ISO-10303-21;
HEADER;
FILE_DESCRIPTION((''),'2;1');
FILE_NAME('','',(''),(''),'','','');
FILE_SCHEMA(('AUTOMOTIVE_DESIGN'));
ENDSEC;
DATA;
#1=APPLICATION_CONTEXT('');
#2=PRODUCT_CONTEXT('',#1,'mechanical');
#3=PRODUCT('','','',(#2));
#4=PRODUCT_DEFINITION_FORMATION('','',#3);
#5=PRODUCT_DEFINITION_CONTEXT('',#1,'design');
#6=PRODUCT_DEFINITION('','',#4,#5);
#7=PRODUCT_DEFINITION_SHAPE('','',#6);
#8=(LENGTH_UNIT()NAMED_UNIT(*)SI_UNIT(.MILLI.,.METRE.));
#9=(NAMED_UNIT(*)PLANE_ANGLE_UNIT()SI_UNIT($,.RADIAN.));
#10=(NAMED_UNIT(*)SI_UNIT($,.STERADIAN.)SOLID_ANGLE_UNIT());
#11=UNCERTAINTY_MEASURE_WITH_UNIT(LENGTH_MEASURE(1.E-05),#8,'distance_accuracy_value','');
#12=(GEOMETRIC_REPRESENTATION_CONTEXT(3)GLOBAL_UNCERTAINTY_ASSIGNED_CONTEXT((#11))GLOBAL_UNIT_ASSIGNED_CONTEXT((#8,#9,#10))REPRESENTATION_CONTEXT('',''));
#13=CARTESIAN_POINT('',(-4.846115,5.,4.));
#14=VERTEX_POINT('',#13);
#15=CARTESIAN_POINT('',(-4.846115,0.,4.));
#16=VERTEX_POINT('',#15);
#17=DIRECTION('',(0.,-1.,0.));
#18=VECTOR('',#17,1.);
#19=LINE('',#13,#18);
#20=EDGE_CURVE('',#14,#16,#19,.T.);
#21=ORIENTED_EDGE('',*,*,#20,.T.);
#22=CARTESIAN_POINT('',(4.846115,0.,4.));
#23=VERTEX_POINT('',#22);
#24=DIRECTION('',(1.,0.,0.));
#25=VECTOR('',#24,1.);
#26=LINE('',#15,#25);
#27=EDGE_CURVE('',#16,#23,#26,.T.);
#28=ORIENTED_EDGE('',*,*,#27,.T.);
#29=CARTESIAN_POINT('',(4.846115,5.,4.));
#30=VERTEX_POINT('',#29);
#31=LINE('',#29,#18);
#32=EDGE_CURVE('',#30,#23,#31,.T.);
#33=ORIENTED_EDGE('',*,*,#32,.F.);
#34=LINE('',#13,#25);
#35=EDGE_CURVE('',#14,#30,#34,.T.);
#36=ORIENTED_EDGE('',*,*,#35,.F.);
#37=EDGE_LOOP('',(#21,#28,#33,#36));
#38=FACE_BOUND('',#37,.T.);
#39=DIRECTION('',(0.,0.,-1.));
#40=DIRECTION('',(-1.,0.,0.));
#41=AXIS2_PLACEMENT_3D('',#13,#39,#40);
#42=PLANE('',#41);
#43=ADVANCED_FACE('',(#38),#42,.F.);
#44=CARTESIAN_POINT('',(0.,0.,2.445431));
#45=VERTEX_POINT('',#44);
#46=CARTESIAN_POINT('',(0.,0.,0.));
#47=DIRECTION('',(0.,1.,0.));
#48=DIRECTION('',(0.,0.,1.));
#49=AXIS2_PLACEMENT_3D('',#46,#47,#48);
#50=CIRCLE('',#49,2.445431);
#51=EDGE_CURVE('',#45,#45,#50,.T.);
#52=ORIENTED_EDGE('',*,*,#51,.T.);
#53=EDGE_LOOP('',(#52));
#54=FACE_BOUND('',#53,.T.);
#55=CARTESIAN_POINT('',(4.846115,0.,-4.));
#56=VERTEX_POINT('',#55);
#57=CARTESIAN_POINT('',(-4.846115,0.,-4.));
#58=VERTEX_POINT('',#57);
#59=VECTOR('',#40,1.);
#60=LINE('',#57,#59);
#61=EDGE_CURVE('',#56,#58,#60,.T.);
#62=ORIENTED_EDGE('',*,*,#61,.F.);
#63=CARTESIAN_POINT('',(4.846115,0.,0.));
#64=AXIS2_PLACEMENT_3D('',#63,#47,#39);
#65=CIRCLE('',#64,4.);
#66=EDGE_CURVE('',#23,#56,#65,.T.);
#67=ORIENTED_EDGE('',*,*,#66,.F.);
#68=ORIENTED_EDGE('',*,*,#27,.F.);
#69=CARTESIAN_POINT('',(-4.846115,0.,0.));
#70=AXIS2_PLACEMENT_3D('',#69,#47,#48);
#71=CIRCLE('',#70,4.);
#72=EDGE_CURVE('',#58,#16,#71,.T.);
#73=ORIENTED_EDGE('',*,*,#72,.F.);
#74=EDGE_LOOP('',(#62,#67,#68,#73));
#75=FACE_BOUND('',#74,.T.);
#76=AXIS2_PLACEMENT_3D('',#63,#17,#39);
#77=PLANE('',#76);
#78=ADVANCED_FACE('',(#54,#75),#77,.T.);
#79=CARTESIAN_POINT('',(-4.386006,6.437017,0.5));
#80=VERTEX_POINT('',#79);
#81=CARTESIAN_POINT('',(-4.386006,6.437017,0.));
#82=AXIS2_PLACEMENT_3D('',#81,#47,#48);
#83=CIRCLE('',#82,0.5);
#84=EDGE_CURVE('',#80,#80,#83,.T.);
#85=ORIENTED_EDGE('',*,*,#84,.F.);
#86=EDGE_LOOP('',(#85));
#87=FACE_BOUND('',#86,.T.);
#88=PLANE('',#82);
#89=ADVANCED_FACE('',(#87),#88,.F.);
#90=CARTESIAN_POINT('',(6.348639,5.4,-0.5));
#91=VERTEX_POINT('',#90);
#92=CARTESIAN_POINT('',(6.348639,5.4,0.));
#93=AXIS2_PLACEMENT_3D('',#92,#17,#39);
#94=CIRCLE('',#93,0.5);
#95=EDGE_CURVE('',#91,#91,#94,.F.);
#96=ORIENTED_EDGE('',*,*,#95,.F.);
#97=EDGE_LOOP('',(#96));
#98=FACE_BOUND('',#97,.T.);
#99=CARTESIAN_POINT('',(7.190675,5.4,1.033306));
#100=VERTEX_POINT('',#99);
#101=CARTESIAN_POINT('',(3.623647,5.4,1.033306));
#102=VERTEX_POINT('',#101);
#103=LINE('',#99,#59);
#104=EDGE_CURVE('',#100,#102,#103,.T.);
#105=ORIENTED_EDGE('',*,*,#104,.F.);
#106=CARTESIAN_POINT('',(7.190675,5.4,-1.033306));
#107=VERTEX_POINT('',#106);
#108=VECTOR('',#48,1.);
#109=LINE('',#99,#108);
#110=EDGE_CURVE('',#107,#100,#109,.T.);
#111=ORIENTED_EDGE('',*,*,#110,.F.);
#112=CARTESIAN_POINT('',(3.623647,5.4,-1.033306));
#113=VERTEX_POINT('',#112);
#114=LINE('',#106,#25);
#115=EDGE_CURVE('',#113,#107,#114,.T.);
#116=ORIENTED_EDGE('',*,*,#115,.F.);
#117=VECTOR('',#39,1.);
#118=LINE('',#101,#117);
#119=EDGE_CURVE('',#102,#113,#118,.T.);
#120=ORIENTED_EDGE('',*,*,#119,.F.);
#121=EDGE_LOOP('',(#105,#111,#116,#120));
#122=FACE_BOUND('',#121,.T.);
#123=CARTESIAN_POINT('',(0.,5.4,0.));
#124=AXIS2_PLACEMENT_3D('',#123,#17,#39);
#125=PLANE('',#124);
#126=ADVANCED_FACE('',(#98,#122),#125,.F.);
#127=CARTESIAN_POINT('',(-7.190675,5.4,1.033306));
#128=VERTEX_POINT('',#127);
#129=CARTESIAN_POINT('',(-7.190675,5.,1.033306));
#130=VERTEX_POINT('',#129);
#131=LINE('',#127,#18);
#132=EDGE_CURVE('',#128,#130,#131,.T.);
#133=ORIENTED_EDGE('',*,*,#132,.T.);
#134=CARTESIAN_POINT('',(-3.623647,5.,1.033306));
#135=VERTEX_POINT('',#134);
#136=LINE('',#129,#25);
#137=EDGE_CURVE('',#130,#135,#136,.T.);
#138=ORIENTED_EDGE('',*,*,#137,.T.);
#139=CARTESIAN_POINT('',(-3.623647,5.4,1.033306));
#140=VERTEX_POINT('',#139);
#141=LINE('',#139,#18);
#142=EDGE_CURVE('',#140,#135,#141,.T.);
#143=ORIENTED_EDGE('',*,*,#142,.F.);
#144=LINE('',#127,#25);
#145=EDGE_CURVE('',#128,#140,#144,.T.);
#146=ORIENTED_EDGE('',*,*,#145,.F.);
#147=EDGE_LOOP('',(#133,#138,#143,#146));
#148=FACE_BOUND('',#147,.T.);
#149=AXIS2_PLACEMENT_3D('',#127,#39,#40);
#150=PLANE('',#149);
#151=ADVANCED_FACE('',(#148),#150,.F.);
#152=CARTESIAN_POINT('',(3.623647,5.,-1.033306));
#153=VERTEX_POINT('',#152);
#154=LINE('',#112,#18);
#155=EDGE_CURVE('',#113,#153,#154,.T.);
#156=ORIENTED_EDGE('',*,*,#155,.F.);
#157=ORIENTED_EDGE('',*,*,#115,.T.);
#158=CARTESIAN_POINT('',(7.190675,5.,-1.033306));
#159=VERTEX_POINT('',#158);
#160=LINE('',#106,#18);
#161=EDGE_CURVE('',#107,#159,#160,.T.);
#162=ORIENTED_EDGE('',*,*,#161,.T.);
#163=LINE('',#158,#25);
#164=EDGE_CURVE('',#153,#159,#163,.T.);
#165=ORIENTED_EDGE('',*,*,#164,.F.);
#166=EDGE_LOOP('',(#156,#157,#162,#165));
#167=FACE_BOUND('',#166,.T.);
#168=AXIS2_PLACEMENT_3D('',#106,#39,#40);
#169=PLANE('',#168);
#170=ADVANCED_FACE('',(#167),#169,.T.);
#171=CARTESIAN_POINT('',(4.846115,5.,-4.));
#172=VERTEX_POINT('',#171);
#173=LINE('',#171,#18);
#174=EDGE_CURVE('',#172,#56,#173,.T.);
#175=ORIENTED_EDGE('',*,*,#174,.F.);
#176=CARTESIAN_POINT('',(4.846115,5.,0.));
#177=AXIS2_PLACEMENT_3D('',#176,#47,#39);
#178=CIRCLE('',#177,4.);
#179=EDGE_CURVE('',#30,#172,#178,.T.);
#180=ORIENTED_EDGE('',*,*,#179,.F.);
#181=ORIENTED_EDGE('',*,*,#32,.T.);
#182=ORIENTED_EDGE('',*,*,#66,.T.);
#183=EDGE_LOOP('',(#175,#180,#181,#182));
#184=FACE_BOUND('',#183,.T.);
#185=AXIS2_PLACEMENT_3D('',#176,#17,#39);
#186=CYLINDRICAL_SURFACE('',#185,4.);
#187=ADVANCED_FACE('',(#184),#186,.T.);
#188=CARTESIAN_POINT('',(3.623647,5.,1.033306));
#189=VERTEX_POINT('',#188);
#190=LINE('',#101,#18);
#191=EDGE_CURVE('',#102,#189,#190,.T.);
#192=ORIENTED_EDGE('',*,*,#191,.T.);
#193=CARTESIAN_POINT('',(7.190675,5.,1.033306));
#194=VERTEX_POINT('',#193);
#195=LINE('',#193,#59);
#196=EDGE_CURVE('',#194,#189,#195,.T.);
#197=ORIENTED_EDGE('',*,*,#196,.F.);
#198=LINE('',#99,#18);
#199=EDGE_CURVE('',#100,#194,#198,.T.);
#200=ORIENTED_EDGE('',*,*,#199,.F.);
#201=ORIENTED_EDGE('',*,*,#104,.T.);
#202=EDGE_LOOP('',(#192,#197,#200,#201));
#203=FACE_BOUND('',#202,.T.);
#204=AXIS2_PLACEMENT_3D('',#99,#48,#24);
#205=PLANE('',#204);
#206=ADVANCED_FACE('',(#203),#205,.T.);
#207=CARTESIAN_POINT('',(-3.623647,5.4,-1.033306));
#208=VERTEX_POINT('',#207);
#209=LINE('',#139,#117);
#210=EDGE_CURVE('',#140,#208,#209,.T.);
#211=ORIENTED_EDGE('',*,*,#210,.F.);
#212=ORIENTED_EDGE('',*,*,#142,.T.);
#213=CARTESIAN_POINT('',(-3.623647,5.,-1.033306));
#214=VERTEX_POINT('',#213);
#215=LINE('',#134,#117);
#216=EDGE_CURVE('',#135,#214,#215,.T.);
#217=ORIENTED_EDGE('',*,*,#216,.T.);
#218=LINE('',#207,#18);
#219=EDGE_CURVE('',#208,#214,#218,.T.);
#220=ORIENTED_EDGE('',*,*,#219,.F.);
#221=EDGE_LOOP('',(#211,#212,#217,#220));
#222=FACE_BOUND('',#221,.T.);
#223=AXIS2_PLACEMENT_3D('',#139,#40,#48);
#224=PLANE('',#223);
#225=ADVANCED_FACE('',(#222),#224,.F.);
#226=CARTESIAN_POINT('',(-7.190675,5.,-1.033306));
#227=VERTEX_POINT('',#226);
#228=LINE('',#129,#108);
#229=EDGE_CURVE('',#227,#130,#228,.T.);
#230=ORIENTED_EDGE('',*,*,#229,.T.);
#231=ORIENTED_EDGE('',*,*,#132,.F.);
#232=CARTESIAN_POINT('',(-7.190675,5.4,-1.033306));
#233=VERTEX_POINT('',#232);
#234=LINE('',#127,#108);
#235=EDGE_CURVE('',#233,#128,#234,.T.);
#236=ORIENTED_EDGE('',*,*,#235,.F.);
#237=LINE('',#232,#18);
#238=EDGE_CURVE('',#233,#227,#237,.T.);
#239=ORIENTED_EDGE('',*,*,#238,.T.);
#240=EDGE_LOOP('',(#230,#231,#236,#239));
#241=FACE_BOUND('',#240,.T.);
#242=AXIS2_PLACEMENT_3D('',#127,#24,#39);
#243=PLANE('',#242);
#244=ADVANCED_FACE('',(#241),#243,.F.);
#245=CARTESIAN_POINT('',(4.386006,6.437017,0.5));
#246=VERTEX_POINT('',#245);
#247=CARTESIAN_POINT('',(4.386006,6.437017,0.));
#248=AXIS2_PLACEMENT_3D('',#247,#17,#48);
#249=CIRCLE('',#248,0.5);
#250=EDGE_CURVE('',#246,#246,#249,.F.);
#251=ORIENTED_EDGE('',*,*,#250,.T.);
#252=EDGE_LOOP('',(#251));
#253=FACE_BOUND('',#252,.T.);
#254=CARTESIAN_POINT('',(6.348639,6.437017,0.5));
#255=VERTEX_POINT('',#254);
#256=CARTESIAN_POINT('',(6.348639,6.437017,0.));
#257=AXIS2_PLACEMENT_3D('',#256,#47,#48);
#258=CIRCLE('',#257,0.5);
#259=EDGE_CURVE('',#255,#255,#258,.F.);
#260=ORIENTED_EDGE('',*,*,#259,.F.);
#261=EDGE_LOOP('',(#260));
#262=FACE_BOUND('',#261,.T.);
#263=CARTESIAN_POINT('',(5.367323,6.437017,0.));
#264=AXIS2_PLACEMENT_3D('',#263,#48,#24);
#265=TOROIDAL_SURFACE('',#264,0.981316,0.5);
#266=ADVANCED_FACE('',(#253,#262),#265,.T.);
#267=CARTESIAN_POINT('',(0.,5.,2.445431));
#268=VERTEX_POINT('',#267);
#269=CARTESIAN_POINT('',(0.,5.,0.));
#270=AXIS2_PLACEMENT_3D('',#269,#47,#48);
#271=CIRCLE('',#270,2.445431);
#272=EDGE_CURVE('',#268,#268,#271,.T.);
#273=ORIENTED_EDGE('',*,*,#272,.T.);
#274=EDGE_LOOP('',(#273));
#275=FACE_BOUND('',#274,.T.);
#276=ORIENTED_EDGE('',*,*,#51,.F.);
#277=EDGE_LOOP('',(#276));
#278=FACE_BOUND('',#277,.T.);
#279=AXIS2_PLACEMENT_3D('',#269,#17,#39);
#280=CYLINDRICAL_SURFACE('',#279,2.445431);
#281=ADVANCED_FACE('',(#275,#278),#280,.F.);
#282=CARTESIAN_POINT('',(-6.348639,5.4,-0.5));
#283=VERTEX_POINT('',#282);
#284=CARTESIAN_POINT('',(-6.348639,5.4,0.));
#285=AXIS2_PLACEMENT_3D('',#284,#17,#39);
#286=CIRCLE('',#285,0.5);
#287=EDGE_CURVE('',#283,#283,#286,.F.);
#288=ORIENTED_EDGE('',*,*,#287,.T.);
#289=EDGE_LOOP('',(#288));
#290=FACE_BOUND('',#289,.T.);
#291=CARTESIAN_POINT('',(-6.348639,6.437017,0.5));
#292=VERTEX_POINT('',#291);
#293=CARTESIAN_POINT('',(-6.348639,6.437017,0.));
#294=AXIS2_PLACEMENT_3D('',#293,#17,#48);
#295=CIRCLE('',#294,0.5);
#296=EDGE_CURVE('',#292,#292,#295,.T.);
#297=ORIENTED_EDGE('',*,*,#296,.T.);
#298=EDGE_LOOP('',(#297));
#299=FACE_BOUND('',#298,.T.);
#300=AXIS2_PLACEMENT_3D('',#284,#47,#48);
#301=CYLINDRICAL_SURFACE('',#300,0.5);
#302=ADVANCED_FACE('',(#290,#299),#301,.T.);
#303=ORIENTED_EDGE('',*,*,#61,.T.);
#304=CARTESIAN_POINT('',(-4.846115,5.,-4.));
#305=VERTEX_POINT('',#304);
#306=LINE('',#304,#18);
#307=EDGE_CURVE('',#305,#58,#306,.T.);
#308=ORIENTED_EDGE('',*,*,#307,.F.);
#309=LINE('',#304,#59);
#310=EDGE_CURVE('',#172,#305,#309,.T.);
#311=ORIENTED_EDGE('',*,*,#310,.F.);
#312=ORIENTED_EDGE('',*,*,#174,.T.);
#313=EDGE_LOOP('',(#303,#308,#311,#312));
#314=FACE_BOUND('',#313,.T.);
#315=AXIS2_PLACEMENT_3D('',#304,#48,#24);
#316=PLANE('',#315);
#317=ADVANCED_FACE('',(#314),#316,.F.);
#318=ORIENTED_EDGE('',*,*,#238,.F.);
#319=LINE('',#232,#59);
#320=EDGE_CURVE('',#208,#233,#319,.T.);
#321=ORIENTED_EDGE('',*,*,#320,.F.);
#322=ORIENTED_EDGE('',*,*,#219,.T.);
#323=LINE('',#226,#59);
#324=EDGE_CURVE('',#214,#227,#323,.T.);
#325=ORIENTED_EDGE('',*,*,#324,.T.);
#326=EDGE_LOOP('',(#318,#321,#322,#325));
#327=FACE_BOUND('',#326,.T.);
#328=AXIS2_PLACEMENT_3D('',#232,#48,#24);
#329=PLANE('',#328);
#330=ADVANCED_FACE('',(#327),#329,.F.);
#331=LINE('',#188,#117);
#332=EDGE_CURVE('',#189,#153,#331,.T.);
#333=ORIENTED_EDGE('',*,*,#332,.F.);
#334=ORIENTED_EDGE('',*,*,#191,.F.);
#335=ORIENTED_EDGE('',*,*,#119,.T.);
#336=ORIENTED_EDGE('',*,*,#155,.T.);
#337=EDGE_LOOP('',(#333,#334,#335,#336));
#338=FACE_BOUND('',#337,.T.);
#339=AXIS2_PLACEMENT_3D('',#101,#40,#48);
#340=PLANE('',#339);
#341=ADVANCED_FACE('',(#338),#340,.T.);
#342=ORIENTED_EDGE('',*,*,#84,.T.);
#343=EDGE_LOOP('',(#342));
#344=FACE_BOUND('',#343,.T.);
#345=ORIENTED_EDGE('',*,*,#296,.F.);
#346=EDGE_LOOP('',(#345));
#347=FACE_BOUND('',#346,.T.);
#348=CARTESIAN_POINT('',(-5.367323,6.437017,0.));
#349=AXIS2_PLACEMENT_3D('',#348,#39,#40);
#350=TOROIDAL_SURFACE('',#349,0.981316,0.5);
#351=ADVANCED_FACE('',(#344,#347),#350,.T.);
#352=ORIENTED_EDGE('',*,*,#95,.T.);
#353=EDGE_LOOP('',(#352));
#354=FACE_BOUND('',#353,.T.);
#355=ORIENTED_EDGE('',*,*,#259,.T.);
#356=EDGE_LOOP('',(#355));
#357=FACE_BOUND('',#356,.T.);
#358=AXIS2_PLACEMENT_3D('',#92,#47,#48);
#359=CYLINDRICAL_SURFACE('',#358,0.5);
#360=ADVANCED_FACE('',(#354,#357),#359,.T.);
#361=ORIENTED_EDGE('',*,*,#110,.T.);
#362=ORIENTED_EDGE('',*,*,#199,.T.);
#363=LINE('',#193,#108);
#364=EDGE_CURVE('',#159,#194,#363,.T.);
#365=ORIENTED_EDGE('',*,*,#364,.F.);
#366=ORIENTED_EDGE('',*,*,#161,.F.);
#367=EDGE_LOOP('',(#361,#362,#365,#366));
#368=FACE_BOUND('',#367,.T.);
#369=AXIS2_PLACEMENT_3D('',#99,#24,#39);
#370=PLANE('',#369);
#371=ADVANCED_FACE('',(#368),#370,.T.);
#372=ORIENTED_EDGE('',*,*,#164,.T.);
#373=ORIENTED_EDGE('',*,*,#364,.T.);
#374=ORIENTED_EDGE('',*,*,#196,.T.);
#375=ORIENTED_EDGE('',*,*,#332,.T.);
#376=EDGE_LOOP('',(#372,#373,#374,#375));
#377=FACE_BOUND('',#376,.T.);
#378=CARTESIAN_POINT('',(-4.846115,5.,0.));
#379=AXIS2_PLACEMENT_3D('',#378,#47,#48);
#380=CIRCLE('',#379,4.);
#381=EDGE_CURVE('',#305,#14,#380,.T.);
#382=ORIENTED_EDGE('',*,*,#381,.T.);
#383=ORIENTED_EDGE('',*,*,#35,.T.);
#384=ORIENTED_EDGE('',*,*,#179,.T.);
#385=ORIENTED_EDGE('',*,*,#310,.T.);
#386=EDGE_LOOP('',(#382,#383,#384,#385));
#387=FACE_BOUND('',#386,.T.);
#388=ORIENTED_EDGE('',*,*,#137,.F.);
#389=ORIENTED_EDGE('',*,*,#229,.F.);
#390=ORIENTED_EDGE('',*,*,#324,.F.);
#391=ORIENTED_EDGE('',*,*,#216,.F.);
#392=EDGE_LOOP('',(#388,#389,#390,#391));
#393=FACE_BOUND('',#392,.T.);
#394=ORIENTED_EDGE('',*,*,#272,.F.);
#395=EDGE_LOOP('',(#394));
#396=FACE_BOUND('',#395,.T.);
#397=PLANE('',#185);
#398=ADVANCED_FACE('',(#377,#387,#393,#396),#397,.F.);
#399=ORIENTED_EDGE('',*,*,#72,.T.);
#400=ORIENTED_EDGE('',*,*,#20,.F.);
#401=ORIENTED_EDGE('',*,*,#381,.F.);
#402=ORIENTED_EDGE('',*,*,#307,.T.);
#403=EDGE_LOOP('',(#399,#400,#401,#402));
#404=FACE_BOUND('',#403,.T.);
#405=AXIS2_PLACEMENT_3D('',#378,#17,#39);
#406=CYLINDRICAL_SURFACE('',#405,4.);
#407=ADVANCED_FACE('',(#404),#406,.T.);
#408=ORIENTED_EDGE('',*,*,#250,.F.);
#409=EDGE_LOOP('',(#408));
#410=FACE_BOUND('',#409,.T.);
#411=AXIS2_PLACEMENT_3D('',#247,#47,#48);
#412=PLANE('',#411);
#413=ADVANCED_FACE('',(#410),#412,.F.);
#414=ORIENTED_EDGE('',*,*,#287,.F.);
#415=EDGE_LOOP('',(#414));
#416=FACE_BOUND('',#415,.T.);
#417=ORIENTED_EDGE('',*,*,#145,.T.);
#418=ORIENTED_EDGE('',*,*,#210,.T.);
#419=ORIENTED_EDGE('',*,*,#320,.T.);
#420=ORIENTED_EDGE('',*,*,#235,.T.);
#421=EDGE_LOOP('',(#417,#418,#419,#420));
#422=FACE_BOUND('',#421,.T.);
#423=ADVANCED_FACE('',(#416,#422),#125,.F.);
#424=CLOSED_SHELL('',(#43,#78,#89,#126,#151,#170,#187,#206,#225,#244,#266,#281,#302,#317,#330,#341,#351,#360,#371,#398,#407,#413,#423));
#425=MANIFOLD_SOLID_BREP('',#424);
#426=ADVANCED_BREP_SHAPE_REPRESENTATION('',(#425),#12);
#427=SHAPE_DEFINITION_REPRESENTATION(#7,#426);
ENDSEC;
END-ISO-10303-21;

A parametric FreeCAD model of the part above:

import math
import FreeCAD as App
import Part
import Sketcher


def add_polygon(sketch, points):
    """Adds a closed chain of lines whose ends are joined by coincident constraints."""
    first, n = sketch.GeometryCount, len(points)
    for a, b in zip(points, points[1:] + points[:1]):
        sketch.addGeometry(Part.LineSegment(App.Vector(*a, 0), App.Vector(*b, 0)), False)
    for i in range(n):
        sketch.addConstraint(Sketcher.Constraint("Coincident", first + i, 2, first + (i + 1) % n, 1))

doc = App.newDocument("Part")
body = doc.addObject("PartDesign::Body", "Body")

# Sketch on XZ plane
sketch1 = body.newObject("Sketcher::SketchObject", "Sketch")
sketch1.AttachmentSupport = (doc.getObject("XZ_Plane"), [""])
sketch1.MapMode = "FlatFace"
sketch1.addGeometry(Part.LineSegment(App.Vector(4.8, -4, 0), App.Vector(-4.8, -4, 0)), False)
sketch1.addGeometry(Part.ArcOfCircle(Part.Circle(App.Vector(-4.8, 0, 0), App.Vector(0, 0, 1), 4), math.radians(90), math.radians(270)), False)
sketch1.addGeometry(Part.LineSegment(App.Vector(-4.8, 4, 0), App.Vector(4.8, 4, 0)), False)
sketch1.addGeometry(Part.ArcOfCircle(Part.Circle(App.Vector(4.8, 0, 0), App.Vector(0, 0, 1), 4), math.radians(-90), math.radians(90)), False)
sketch1.addGeometry(Part.Circle(App.Vector(0, 0, 0), App.Vector(0, 0, 1), 2.4), False)
sketch1.addConstraint(Sketcher.Constraint("Tangent", 0, 2, 1, 2))
sketch1.addConstraint(Sketcher.Constraint("Tangent", 1, 1, 2, 1))
sketch1.addConstraint(Sketcher.Constraint("Tangent", 2, 2, 3, 2))
sketch1.addConstraint(Sketcher.Constraint("Tangent", 3, 1, 0, 1))
sketch1.addConstraint(Sketcher.Constraint("Horizontal", 0))
sketch1.addConstraint(Sketcher.Constraint("Horizontal", 2))
sketch1.addConstraint(Sketcher.Constraint("Coincident", 4, 3, -1, 1))
sketch1.addConstraint(Sketcher.Constraint("Symmetric", 1, 3, 3, 3, -1, 1))
sketch1.addConstraint(Sketcher.Constraint("Radius", 1, 4.0))
sketch1.addConstraint(Sketcher.Constraint("Diameter", 4, 4.890863))
sketch1.addConstraint(Sketcher.Constraint("DistanceX", 0, 2, 0, 1, 9.69223))
pad1 = body.newObject("PartDesign::Pad", "Pad")
pad1.Profile = sketch1
pad1.Length = 5
pad1.Reversed = True

# Sketch on XZ plane
sketch2 = body.newObject("Sketcher::SketchObject", "Sketch001")
sketch2.AttachmentSupport = (doc.getObject("XZ_Plane"), [""])
sketch2.MapMode = "FlatFace"
sketch2.AttachmentOffset = App.Placement(App.Vector(0, 0, -5), App.Rotation())
add_polygon(sketch2, [(-7.2, -1), (-7.2, 1), (-3.6, 1), (-3.6, -1)])  # lines 0-3
sketch2.addConstraint(Sketcher.Constraint("Vertical", 0))
sketch2.addConstraint(Sketcher.Constraint("Horizontal", 1))
sketch2.addConstraint(Sketcher.Constraint("Vertical", 2))
sketch2.addConstraint(Sketcher.Constraint("Horizontal", 3))
sketch2.addConstraint(Sketcher.Constraint("DistanceY", 0, 1, 0, 2, 2.066611))
sketch2.addConstraint(Sketcher.Constraint("DistanceX", 1, 1, 1, 2, 3.567028))
sketch2.addConstraint(Sketcher.Constraint("DistanceX", 0, 2, -1, 1, 7.190675))
sketch2.addConstraint(Sketcher.Constraint("DistanceY", -1, 1, 0, 2, 1.033306))
pad2 = body.newObject("PartDesign::Pad", "Pad001")
pad2.Profile = sketch2
pad2.Length = 0.4
pad2.Reversed = True

# Sketch on XZ plane
sketch3 = body.newObject("Sketcher::SketchObject", "Sketch002")
sketch3.AttachmentSupport = (doc.getObject("XZ_Plane"), [""])
sketch3.MapMode = "FlatFace"
sketch3.AttachmentOffset = App.Placement(App.Vector(0, 0, -5.4), App.Rotation())
sketch3.addGeometry(Part.Circle(App.Vector(-6.3, 0, 0), App.Vector(0, 0, 1), 0.5), False)
sketch3.addConstraint(Sketcher.Constraint("PointOnObject", 0, 3, -1))
sketch3.addConstraint(Sketcher.Constraint("Diameter", 0, 1.0))
sketch3.addConstraint(Sketcher.Constraint("DistanceX", 0, 3, -1, 1, 6.348639))

# Sketch on XY plane
sketch4 = body.newObject("Sketcher::SketchObject", "Sketch003")
sketch4.AttachmentSupport = (doc.getObject("XY_Plane"), [""])
sketch4.MapMode = "FlatFace"
sketch4.addGeometry(Part.LineSegment(App.Vector(-6.3, 5.4, 0), App.Vector(-6.3, 6.4, 0)), False)
sketch4.addGeometry(Part.ArcOfCircle(Part.Circle(App.Vector(-5.4, 6.4, 0), App.Vector(0, 0, 1), 1), math.radians(0), math.radians(180)), False)
sketch4.addConstraint(Sketcher.Constraint("Tangent", 0, 2, 1, 2))
sketch4.addConstraint(Sketcher.Constraint("Vertical", 0))
sketch4.addConstraint(Sketcher.Constraint("Horizontal", 0, 2, 1, 1))
sketch4.addConstraint(Sketcher.Constraint("DistanceY", -1, 1, 0, 1, 5.4))
sketch4.addConstraint(Sketcher.Constraint("Radius", 1, 0.981316))
sketch4.addConstraint(Sketcher.Constraint("DistanceY", 0, 1, 0, 2, 1.037017))
sketch4.addConstraint(Sketcher.Constraint("DistanceX", 0, 1, -1, 1, 6.348639))
doc.recompute()

additivepipe = body.newObject("PartDesign::AdditivePipe", "AdditivePipe")
additivepipe.Profile = sketch3
additivepipe.Spine = (sketch4, ["Edge1", "Edge2"])
doc.recompute()

mirrored = body.newObject("PartDesign::Mirrored", "Mirrored")
mirrored.Originals = [pad2, additivepipe]
mirrored.MirrorPlane = (doc.getObject("YZ_Plane"), [""])
body.Tip = mirrored

doc.recompute()
